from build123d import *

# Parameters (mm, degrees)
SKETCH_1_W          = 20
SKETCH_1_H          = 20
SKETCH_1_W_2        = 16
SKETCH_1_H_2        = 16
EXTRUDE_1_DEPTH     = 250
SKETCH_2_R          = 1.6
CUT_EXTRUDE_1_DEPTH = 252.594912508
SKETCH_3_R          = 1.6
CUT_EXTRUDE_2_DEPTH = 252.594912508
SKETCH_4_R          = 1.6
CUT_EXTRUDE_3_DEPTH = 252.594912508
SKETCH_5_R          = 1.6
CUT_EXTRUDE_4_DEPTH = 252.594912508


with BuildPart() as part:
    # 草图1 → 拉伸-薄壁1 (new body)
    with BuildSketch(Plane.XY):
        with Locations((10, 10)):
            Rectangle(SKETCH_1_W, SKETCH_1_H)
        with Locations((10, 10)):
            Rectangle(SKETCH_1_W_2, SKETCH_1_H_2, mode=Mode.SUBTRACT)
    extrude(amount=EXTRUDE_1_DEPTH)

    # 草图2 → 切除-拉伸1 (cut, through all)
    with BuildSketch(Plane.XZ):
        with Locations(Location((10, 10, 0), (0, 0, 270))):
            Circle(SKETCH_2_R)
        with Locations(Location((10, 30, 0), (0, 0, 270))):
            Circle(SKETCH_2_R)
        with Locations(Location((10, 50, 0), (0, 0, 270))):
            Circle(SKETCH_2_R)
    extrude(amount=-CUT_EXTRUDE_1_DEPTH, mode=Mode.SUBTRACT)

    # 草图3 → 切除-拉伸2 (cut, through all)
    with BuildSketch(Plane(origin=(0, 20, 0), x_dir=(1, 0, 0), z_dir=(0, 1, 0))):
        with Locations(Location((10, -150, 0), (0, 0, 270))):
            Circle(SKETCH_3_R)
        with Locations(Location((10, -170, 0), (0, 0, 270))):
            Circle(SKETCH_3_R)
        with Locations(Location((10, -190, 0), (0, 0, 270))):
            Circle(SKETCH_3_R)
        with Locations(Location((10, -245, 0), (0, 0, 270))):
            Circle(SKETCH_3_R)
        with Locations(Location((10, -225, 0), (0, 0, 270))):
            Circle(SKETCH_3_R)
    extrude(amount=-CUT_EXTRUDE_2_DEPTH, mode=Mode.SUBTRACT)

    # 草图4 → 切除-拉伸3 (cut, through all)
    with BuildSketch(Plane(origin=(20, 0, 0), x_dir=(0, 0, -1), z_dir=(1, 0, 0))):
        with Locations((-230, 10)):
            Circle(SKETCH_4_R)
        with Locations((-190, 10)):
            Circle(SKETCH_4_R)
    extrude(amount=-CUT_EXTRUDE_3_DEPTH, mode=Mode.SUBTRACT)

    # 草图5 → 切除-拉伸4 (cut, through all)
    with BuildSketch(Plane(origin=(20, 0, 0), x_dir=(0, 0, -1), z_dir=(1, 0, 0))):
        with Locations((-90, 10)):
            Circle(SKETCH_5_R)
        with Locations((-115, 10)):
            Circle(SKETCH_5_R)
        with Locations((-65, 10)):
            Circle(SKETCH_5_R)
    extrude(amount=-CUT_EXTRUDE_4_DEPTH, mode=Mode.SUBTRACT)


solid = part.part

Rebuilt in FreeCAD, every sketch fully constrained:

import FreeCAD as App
import Part
import Sketcher

V = App.Vector
Q = App.Units.Quantity

doc = App.newDocument("Part")
body = doc.addObject("PartDesign::Body", "Body")

# Sketch on XY plane
sketch1 = body.newObject("Sketcher::SketchObject", "Sketch")
sketch1.AttachmentSupport = (doc.getObject("XY_Plane"), [""])
sketch1.MapMode = "FlatFace"
sketch1.addGeometry([
    Part.LineSegment(V(0, 20, 0), V(0, 0, 0)),  # 0
    Part.LineSegment(V(0, 0, 0), V(20, 0, 0)),  # 1
    Part.LineSegment(V(20, 0, 0), V(20, 20, 0)),  # 2
    Part.LineSegment(V(20, 20, 0), V(0, 20, 0)),  # 3
    Part.LineSegment(V(18, 2, 0), V(2, 2, 0)),  # 4
    Part.LineSegment(V(2, 2, 0), V(2, 18, 0)),  # 5
    Part.LineSegment(V(2, 18, 0), V(18, 18, 0)),  # 6
    Part.LineSegment(V(18, 18, 0), V(18, 2, 0)),  # 7
], False)
sketch1.addConstraint([
    Sketcher.Constraint("Coincident", 0, 2, 1, 1),
    Sketcher.Constraint("Coincident", 1, 2, 2, 1),
    Sketcher.Constraint("Coincident", 2, 2, 3, 1),
    Sketcher.Constraint("Coincident", 3, 2, 0, 1),
    Sketcher.Constraint("Coincident", 4, 2, 5, 1),
    Sketcher.Constraint("Coincident", 5, 2, 6, 1),
    Sketcher.Constraint("Coincident", 6, 2, 7, 1),
    Sketcher.Constraint("Coincident", 7, 2, 4, 1),
    Sketcher.Constraint("Vertical", 0),
    Sketcher.Constraint("Horizontal", 1),
    Sketcher.Constraint("Vertical", 2),
    Sketcher.Constraint("Horizontal", 3),
    Sketcher.Constraint("Horizontal", 4),
    Sketcher.Constraint("Vertical", 5),
    Sketcher.Constraint("Horizontal", 6),
    Sketcher.Constraint("Vertical", 7),
    Sketcher.Constraint("Coincident", 0, 2, -1, 1),
    Sketcher.Constraint("Equal", 3, 0),
    Sketcher.Constraint("Equal", 6, 5),
    Sketcher.Constraint("DistanceX", 1, 1, 1, 2, Q("20 mm")),
    Sketcher.Constraint("DistanceX", 4, 2, 4, 1, Q("16 mm")),
    Sketcher.Constraint("DistanceX", -1, 1, 4, 2, Q("2 mm")),
    Sketcher.Constraint("DistanceY", -1, 1, 4, 2, Q("2 mm")),
])
pad1 = body.newObject("PartDesign::Pad", "Pad")
pad1.Profile = sketch1
pad1.Length = 250

# Sketch on XZ plane
sketch2 = body.newObject("Sketcher::SketchObject", "Sketch001")
sketch2.AttachmentSupport = (doc.getObject("XZ_Plane"), [""])
sketch2.MapMode = "FlatFace"
sketch2.addGeometry([
    Part.Circle(V(10, 10, 0), V(0, 0, 1), 1.6),
    Part.Circle(V(10, 30, 0), V(0, 0, 1), 1.6),
    Part.Circle(V(10, 50, 0), V(0, 0, 1), 1.6),
], False)
sketch2.addConstraint([
    Sketcher.Constraint("Equal", 0, 1),
    Sketcher.Constraint("Equal", 1, 2),
    Sketcher.Constraint("Vertical", 0, 3, 1, 3),
    Sketcher.Constraint("Vertical", 1, 3, 2, 3),
    Sketcher.Constraint("Diameter", 0, Q("3.2 mm")),
    Sketcher.Constraint("DistanceX", -1, 1, 0, 3, Q("10 mm")),
    Sketcher.Constraint("DistanceY", -1, 1, 0, 3, Q("10 mm")),
    Sketcher.Constraint("DistanceY", -1, 1, 1, 3, Q("30 mm")),
    Sketcher.Constraint("DistanceY", -1, 1, 2, 3, Q("50 mm")),
])
pocket1 = body.newObject("PartDesign::Pocket", "Pocket")
pocket1.Profile = sketch2
pocket1.Type = "ThroughAll"

# Sketch on XZ plane
sketch3 = body.newObject("Sketcher::SketchObject", "Sketch002")
sketch3.AttachmentSupport = (doc.getObject("XZ_Plane"), [""])
sketch3.MapMode = "FlatFace"
sketch3.AttachmentOffset = App.Placement(V(0, 0, -20), App.Rotation())
sketch3.addGeometry([
    Part.Circle(V(10, 150, 0), V(0, 0, 1), 1.6),  # 0
    Part.Circle(V(10, 170, 0), V(0, 0, 1), 1.6),  # 1
    Part.Circle(V(10, 190, 0), V(0, 0, 1), 1.6),  # 2
    Part.Circle(V(10, 245, 0), V(0, 0, 1), 1.6),  # 3
    Part.Circle(V(10, 225, 0), V(0, 0, 1), 1.6),  # 4
], False)
sketch3.addConstraint([
    Sketcher.Constraint("Equal", 0, 1),
    Sketcher.Constraint("Equal", 1, 2),
    Sketcher.Constraint("Equal", 2, 3),
    Sketcher.Constraint("Equal", 3, 4),
    Sketcher.Constraint("Vertical", 0, 3, 1, 3),
    Sketcher.Constraint("Vertical", 1, 3, 2, 3),
    Sketcher.Constraint("Vertical", 2, 3, 3, 3),
    Sketcher.Constraint("Vertical", 3, 3, 4, 3),
    Sketcher.Constraint("Diameter", 0, Q("3.2 mm")),
    Sketcher.Constraint("DistanceX", -1, 1, 0, 3, Q("10 mm")),
    Sketcher.Constraint("DistanceY", -1, 1, 0, 3, Q("150 mm")),
    Sketcher.Constraint("DistanceY", -1, 1, 1, 3, Q("170 mm")),
    Sketcher.Constraint("DistanceY", -1, 1, 2, 3, Q("190 mm")),
    Sketcher.Constraint("DistanceY", -1, 1, 3, 3, Q("245 mm")),
    Sketcher.Constraint("DistanceY", -1, 1, 4, 3, Q("225 mm")),
])
pocket2 = body.newObject("PartDesign::Pocket", "Pocket001")
pocket2.Profile = sketch3
pocket2.Type = "ThroughAll"
pocket2.Reversed = True

# Sketch on YZ plane
sketch4 = body.newObject("Sketcher::SketchObject", "Sketch003")
sketch4.AttachmentSupport = (doc.getObject("YZ_Plane"), [""])
sketch4.MapMode = "FlatFace"
sketch4.AttachmentOffset = App.Placement(V(0, 0, 20), App.Rotation())
sketch4.addGeometry([
    Part.Circle(V(10, 230, 0), V(0, 0, 1), 1.6),
    Part.Circle(V(10, 190, 0), V(0, 0, 1), 1.6),
], False)
sketch4.addConstraint([
    Sketcher.Constraint("Equal", 0, 1),
    Sketcher.Constraint("Vertical", 0, 3, 1, 3),
    Sketcher.Constraint("Diameter", 0, Q("3.2 mm")),
    Sketcher.Constraint("DistanceX", -1, 1, 0, 3, Q("10 mm")),
    Sketcher.Constraint("DistanceY", -1, 1, 0, 3, Q("230 mm")),
    Sketcher.Constraint("DistanceY", -1, 1, 1, 3, Q("190 mm")),
])
pocket3 = body.newObject("PartDesign::Pocket", "Pocket002")
pocket3.Profile = sketch4
pocket3.Type = "ThroughAll"

# Sketch on YZ plane
sketch5 = body.newObject("Sketcher::SketchObject", "Sketch004")
sketch5.AttachmentSupport = (doc.getObject("YZ_Plane"), [""])
sketch5.MapMode = "FlatFace"
sketch5.AttachmentOffset = App.Placement(V(0, 0, 20), App.Rotation())
sketch5.addGeometry([
    Part.Circle(V(10, 90, 0), V(0, 0, 1), 1.6),
    Part.Circle(V(10, 115, 0), V(0, 0, 1), 1.6),
    Part.Circle(V(10, 65, 0), V(0, 0, 1), 1.6),
], False)
sketch5.addConstraint([
    Sketcher.Constraint("Equal", 0, 1),
    Sketcher.Constraint("Equal", 1, 2),
    Sketcher.Constraint("Vertical", 0, 3, 1, 3),
    Sketcher.Constraint("Vertical", 1, 3, 2, 3),
    Sketcher.Constraint("Diameter", 0, Q("3.2 mm")),
    Sketcher.Constraint("DistanceX", -1, 1, 0, 3, Q("10 mm")),
    Sketcher.Constraint("DistanceY", -1, 1, 0, 3, Q("90 mm")),
    Sketcher.Constraint("DistanceY", -1, 1, 1, 3, Q("115 mm")),
    Sketcher.Constraint("DistanceY", -1, 1, 2, 3, Q("65 mm")),
])
pocket4 = body.newObject("PartDesign::Pocket", "Pocket003")
pocket4.Profile = sketch5
pocket4.Type = "ThroughAll"

doc.recompute()
